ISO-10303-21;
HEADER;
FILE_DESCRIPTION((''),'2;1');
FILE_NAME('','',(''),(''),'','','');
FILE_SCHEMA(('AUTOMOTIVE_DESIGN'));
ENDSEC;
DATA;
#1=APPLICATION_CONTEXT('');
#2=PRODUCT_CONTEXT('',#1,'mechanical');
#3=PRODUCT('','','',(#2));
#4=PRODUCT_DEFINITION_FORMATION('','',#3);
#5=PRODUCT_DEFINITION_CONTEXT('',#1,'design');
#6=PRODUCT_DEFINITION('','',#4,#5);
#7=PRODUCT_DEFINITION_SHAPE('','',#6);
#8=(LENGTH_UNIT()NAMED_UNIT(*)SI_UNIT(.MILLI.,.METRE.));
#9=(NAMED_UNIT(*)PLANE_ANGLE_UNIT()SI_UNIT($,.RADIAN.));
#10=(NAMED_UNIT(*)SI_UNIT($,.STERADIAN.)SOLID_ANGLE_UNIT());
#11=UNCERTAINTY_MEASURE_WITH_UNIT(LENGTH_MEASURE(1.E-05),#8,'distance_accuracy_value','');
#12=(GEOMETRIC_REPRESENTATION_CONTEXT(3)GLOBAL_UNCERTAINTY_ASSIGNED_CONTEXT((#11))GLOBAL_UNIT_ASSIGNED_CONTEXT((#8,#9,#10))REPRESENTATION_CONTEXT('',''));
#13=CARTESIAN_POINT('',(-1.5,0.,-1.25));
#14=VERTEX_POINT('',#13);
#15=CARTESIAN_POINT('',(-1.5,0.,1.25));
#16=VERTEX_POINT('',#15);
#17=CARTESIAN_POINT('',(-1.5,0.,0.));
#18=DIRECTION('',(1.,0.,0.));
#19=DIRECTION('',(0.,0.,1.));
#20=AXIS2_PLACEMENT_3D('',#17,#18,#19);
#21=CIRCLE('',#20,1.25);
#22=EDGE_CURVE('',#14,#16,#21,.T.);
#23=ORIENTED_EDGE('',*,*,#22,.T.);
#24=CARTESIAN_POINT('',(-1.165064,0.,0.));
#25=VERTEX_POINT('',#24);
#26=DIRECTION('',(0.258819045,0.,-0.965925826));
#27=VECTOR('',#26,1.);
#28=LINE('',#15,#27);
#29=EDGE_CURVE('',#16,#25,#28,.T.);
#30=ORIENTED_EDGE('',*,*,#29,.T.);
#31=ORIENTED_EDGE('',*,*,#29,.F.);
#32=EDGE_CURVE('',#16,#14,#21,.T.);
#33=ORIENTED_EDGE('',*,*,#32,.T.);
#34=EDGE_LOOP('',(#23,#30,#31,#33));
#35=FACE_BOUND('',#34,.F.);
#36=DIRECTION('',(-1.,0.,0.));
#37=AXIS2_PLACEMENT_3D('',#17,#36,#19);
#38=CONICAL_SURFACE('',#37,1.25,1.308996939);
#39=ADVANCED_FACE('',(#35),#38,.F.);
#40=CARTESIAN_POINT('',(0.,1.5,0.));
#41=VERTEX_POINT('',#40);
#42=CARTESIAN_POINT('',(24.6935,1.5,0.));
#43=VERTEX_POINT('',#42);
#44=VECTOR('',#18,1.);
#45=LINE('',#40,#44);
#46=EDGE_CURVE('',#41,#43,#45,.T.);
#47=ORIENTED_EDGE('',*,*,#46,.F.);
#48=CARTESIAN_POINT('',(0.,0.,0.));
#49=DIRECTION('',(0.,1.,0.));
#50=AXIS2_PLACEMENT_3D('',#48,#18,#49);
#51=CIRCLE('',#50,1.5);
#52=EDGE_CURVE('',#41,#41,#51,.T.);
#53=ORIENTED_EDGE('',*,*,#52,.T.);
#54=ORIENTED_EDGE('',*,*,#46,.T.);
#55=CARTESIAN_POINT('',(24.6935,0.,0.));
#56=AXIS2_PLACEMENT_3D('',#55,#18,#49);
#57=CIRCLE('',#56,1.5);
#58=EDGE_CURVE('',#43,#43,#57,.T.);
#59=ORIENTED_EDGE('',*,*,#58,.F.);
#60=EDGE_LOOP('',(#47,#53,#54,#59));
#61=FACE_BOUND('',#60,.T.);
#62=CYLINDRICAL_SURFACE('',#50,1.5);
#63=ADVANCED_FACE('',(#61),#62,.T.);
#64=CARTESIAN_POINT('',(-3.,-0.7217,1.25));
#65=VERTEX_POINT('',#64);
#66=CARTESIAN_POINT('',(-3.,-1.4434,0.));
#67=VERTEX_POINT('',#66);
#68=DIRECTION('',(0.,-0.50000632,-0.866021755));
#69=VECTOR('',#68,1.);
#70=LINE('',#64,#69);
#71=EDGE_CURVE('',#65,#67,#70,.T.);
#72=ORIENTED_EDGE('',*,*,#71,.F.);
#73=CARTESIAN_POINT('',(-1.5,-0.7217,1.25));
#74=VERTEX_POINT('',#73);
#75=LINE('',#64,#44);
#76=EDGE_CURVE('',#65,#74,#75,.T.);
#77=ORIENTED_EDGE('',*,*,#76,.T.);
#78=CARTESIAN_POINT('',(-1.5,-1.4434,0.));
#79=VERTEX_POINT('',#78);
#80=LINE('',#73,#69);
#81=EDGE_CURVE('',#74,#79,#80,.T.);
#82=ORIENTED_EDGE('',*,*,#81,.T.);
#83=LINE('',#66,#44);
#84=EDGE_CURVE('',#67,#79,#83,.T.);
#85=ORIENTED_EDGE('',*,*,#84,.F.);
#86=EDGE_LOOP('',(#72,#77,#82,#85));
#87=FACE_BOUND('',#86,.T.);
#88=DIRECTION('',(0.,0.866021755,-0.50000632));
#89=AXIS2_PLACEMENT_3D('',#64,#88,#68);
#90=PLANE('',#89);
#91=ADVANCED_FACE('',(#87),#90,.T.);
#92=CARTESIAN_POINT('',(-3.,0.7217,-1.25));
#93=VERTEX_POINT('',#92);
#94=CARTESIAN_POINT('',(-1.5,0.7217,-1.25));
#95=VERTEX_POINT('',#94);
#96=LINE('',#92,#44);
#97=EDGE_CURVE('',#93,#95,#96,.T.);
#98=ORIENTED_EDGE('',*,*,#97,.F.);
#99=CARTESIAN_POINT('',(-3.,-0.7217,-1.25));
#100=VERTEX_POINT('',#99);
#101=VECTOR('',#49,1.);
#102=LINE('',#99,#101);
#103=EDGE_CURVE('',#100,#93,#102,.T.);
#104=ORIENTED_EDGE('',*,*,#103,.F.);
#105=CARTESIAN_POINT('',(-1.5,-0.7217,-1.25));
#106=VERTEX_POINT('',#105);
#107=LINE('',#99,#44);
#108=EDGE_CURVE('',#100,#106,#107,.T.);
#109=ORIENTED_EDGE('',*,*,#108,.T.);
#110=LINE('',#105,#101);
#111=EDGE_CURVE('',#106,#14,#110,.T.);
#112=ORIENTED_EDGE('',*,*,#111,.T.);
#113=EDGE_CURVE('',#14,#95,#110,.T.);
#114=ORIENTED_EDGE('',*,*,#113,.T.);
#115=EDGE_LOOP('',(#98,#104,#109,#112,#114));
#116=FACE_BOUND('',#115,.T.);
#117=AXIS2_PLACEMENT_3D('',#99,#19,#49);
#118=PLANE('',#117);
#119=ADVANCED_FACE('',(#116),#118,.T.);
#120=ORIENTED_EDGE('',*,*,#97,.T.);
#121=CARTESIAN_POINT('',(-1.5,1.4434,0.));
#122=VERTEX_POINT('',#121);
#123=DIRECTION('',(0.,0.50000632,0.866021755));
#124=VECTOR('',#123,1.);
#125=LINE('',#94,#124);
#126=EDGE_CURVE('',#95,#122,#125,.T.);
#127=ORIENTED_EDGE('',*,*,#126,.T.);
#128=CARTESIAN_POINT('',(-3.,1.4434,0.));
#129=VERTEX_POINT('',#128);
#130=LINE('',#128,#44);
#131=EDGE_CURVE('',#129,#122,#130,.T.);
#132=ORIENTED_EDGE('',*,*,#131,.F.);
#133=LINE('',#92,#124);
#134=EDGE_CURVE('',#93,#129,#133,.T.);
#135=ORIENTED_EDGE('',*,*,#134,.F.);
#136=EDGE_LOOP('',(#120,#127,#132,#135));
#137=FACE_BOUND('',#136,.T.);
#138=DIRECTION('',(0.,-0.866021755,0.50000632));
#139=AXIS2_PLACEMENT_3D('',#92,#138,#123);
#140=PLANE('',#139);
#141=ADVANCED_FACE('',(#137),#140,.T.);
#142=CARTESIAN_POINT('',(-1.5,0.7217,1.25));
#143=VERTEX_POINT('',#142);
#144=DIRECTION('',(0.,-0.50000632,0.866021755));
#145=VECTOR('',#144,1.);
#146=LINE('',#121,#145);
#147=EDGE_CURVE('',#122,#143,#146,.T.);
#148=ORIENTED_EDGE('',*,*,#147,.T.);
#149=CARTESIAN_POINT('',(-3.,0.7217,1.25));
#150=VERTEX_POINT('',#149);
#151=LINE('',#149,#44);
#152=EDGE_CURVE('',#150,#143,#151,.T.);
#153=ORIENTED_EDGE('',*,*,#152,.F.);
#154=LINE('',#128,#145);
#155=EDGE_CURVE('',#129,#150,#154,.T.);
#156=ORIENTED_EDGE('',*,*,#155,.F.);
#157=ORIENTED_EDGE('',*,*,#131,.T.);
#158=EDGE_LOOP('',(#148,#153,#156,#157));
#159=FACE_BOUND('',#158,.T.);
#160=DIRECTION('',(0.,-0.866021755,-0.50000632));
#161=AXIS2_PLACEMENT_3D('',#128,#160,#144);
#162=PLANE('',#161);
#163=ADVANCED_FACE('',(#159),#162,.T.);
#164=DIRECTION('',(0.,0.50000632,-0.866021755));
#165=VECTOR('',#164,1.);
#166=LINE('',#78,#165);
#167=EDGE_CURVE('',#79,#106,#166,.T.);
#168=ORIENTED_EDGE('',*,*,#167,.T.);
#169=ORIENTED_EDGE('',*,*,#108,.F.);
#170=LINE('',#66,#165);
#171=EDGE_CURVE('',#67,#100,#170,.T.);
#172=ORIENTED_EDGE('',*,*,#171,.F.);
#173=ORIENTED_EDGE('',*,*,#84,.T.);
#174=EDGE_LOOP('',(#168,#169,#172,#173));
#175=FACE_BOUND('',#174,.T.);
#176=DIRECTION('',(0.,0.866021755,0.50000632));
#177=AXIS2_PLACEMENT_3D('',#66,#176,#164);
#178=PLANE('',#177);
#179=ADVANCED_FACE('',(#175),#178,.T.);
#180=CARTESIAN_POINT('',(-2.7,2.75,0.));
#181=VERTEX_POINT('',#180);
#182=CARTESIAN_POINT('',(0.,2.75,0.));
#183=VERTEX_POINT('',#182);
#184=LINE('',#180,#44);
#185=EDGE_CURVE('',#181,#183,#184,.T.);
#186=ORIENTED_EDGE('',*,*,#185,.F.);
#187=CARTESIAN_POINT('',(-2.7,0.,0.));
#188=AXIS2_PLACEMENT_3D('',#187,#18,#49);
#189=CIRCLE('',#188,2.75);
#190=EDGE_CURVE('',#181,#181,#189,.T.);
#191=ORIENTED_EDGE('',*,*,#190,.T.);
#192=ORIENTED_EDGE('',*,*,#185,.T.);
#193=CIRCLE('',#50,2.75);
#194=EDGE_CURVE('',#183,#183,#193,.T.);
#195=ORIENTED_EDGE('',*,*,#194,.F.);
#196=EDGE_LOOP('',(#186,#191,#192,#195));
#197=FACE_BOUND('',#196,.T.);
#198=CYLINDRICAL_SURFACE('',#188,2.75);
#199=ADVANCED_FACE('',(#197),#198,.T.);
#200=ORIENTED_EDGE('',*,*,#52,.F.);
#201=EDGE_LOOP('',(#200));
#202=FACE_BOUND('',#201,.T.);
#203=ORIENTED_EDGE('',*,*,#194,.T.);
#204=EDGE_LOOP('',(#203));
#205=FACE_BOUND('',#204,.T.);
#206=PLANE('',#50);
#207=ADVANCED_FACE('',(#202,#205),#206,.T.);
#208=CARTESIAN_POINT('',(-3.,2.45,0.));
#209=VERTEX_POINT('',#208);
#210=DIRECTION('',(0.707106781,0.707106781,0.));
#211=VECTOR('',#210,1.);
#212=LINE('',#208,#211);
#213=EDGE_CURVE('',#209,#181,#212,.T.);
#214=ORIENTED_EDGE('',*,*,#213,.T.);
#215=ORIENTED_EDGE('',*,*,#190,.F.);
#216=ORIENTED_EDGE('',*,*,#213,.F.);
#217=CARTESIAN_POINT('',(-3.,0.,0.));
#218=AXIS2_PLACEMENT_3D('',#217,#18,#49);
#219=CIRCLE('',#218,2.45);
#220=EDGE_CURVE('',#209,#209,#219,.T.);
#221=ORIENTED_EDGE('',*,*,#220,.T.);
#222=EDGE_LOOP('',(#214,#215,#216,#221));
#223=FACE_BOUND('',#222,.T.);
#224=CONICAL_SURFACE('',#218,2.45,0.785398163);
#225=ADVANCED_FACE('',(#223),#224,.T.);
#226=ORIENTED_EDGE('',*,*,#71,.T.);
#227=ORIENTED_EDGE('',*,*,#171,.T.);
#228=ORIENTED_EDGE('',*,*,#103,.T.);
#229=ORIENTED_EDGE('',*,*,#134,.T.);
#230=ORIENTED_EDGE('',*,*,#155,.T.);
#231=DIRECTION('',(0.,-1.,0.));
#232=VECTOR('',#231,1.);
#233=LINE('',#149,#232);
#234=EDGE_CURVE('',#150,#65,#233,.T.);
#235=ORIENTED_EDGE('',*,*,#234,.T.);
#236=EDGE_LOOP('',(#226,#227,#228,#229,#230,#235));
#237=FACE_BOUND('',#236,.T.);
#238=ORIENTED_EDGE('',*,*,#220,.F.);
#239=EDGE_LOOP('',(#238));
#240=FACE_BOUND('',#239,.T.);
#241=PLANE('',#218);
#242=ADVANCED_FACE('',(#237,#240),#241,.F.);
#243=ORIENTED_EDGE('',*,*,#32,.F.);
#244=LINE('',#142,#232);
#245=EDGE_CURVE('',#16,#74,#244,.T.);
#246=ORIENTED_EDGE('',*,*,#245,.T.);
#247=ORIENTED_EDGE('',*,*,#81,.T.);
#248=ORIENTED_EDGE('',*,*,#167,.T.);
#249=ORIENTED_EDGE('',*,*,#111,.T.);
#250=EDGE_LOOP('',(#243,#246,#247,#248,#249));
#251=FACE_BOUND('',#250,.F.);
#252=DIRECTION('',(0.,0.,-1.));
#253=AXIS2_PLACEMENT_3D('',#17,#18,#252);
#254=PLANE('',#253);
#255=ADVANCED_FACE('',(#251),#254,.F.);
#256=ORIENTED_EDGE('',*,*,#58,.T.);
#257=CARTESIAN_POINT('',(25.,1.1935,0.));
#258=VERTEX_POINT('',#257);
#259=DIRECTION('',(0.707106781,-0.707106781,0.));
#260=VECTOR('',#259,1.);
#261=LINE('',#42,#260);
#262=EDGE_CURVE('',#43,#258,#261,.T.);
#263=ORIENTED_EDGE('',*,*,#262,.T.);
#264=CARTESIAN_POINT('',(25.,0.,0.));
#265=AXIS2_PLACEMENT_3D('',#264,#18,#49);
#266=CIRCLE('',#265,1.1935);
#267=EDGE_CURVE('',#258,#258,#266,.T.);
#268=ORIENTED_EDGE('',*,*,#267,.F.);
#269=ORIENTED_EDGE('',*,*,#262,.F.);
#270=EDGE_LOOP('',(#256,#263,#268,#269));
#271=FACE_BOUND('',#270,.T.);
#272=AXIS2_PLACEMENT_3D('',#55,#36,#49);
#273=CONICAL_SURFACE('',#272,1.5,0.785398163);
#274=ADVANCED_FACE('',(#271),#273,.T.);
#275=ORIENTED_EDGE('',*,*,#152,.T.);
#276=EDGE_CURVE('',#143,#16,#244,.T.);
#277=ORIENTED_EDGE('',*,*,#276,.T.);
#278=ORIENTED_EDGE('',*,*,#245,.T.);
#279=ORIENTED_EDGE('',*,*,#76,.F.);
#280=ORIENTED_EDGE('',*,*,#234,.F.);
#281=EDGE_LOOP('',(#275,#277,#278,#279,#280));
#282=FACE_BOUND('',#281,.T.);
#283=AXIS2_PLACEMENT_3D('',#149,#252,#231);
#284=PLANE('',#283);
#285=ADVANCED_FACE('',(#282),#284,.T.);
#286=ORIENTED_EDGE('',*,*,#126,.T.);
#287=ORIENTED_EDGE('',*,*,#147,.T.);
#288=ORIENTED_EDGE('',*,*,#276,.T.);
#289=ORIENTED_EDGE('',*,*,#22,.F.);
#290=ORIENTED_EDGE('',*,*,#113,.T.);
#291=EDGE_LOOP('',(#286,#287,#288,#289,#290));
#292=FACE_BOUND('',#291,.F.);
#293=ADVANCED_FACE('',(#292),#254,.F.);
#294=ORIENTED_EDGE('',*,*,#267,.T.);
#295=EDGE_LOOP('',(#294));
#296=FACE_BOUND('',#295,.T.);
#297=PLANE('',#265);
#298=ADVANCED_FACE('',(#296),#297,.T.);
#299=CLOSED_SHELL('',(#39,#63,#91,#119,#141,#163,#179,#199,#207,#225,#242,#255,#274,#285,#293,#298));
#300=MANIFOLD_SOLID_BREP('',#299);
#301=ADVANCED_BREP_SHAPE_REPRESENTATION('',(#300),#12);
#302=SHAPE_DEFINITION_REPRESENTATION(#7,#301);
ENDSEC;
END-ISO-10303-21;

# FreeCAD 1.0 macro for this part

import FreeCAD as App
import Part
import Sketcher
Q = App.Units.Quantity


def add_polygon(sketch, points):
    """Adds a closed chain of lines whose ends are joined by coincident constraints."""
    first, n = sketch.GeometryCount, len(points)
    for a, b in zip(points, points[1:] + points[:1]):
        sketch.addGeometry(Part.LineSegment(App.Vector(*a, 0), App.Vector(*b, 0)), False)
    for i in range(n):
        sketch.addConstraint(Sketcher.Constraint("Coincident", first + i, 2, first + (i + 1) % n, 1))

doc = App.newDocument("Part")
body = doc.addObject("PartDesign::Body", "Body")

sketch1 = body.newObject("Sketcher::SketchObject", "Sketch")
sketch1.AttachmentSupport = (doc.getObject("XY_Plane"), [""])
sketch1.MapMode = "FlatFace"
add_polygon(sketch1, [(-3, 0), (25, 0), (25, 1.19), (24.69, 1.5), (0, 1.5), (0, 2.75), (-2.7, 2.75), (-3, 2.45)])
sketch1.addConstraint([
    Sketcher.Constraint("Horizontal", 0),
    Sketcher.Constraint("Vertical", 1),
    Sketcher.Constraint("Horizontal", 3),
    Sketcher.Constraint("Vertical", 4),
    Sketcher.Constraint("Horizontal", 5),
    Sketcher.Constraint("Vertical", 7),
    Sketcher.Constraint("PointOnObject", 0, 2, -1),
    Sketcher.Constraint("PointOnObject", 3, 2, -2),
    Sketcher.Constraint("Perpendicular", 2, 6),
    Sketcher.Constraint("DistanceX", 0, 1, 0, 2, Q("28 mm")),
    Sketcher.Constraint("Angle", 2, Q("135 deg")),
    Sketcher.Constraint("DistanceX", 5, 2, 5, 1, Q("2.7 mm")),
    Sketcher.Constraint("DistanceX", -1, 1, 0, 2, Q("25 mm")),
    Sketcher.Constraint("DistanceY", 4, 1, 4, 2, Q("1.25 mm")),
    Sketcher.Constraint("DistanceY", 7, 2, 7, 1, Q("2.45 mm")),
    Sketcher.Constraint("DistanceX", 3, 2, 3, 1, Q("24.6935 mm")),
])
revolution = body.newObject("PartDesign::Revolution", "Revolution")
revolution.Profile = sketch1
revolution.ReferenceAxis = (sketch1, ["H_Axis"])
revolution.Angle = 360

sketch2 = body.newObject("Sketcher::SketchObject", "Sketch001")
sketch2.AttachmentSupport = (doc.getObject("YZ_Plane"), [""])
sketch2.MapMode = "FlatFace"
sketch2.AttachmentOffset = App.Placement(App.Vector(0, 0, -3), App.Rotation())
sketch2.addGeometry(Part.Circle(App.Vector(0, 0, 0), App.Vector(0, 0, 1), 1.2), False)
sketch2.addConstraint([
    Sketcher.Constraint("Coincident", 0, 3, -1, 1),
    Sketcher.Constraint("Diameter", 0, Q("2.5 mm")),
])
doc.recompute()
hole = body.newObject("PartDesign::Hole", "Hole")
hole.Profile = sketch2
hole.ThreadType = "None"
hole.Diameter = 2.5
hole.DepthType = "Dimension"
hole.Depth = 1.5
hole.DrillPoint = "Angled"
hole.DrillPointAngle = 150
hole.Reversed = True

sketch3 = body.newObject("Sketcher::SketchObject", "Sketch002")
sketch3.AttachmentSupport = (doc.getObject("YZ_Plane"), [""])
sketch3.MapMode = "FlatFace"
sketch3.AttachmentOffset = App.Placement(App.Vector(0, 0, -3), App.Rotation())
add_polygon(sketch3, [(0.7, 1.2), (-0.7, 1.2), (-1.4, 0), (-0.7, -1.2), (0.7, -1.2), (1.4, 0)])
sketch3.addConstraint([
    Sketcher.Constraint("Horizontal", 0),
    Sketcher.Constraint("Horizontal", 3),
    Sketcher.Constraint("Symmetric", 0, 2, 3, 2, -1, 1),
    Sketcher.Constraint("Symmetric", 1, 2, 4, 2, -1, 1),
    Sketcher.Constraint("PointOnObject", 1, 2, -1),
    Sketcher.Constraint("Parallel", 2, 5),
    Sketcher.Constraint("Vertical", 0, 2, 2, 2),
    Sketcher.Constraint("Angle", 1, Q("-120.0004 deg")),
    Sketcher.Constraint("DistanceY", 2, 2, 0, 2, Q("2.5 mm")),
    Sketcher.Constraint("DistanceX", 0, 2, 0, 1, Q("1.4434 mm")),
])
pocket1 = body.newObject("PartDesign::Pocket", "Pocket")
pocket1.Profile = sketch3
pocket1.Length = 1.5
pocket1.Reversed = True

doc.recompute()
